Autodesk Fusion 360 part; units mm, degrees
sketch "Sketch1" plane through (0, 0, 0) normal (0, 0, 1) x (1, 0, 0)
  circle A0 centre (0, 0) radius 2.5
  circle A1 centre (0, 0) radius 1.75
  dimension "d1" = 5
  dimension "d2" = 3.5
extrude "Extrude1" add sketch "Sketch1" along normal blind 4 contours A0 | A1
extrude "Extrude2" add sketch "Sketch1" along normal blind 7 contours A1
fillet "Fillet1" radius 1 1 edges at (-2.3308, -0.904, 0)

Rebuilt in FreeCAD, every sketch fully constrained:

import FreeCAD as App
import Part
import Sketcher
from FreeCAD import Vector


def edges_at(feature, points):
    """Names of the edges that pass closest to the given points."""
    edges = feature.Shape.Edges
    near = lambda p: min(range(len(edges)), key=lambda i: edges[i].distToShape(Part.Vertex(*p))[0])
    return sorted({f"Edge{near(p) + 1}" for p in points})

doc = App.newDocument("Part")
body = doc.addObject("PartDesign::Body", "Body")

# Sketch on XY plane
sketch1 = body.newObject("Sketcher::SketchObject", "Sketch")
sketch1.AttachmentSupport = (doc.getObject("XY_Plane"), [""])
sketch1.MapMode = "FlatFace"
sketch1.addGeometry(Part.Circle(Vector(0, 0, 0), Vector(0, 0, 1), 2.5), False)
sketch1.addConstraint([
    Sketcher.Constraint("Coincident", 0, 3, -1, 1),
    Sketcher.Constraint("Diameter", 0, 5.0),
])
pad1 = body.newObject("PartDesign::Pad", "Pad")
pad1.Profile = sketch1
pad1.Length = 4

# Sketch on XY plane
sketch2 = body.newObject("Sketcher::SketchObject", "Sketch001")
sketch2.AttachmentSupport = (doc.getObject("XY_Plane"), [""])
sketch2.MapMode = "FlatFace"
sketch2.addGeometry(Part.Circle(Vector(0, 0, 0), Vector(0, 0, 1), 1.75), False)
sketch2.addConstraint([
    Sketcher.Constraint("Coincident", 0, 3, -1, 1),
    Sketcher.Constraint("Diameter", 0, 3.5),
])
pad2 = body.newObject("PartDesign::Pad", "Pad001")
pad2.Profile = sketch2
pad2.Length = 7
doc.recompute()

fillet = body.newObject("PartDesign::Fillet", "Fillet")
fillet.Base = (pad2, edges_at(pad2, [(-2.331, -0.904, 0)]))
fillet.Radius = 1

doc.recompute()
